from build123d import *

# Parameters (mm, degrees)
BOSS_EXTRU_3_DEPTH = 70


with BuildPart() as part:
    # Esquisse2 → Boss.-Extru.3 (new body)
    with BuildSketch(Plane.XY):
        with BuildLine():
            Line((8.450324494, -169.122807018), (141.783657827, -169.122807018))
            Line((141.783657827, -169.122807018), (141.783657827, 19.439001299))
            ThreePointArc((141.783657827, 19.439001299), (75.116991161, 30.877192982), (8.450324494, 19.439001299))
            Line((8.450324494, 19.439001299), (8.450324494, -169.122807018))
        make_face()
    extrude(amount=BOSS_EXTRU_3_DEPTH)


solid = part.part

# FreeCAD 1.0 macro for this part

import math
import FreeCAD as App
import Part
import Sketcher

doc = App.newDocument("Part")
body = doc.addObject("PartDesign::Body", "Body")

# Sketch on XY plane
sketch1 = body.newObject("Sketcher::SketchObject", "Sketch")
sketch1.AttachmentSupport = (doc.getObject("XY_Plane"), [""])
sketch1.MapMode = "FlatFace"
sketch1.addGeometry([
    Part.LineSegment(App.Vector(8.450324, -169.122807, 0), App.Vector(141.783658, -169.122807, 0)),
    Part.LineSegment(App.Vector(141.783658, -169.122807, 0), App.Vector(141.783658, 19.439001, 0)),
    Part.ArcOfCircle(Part.Circle(App.Vector(75.116991, -169.122807, 0), App.Vector(0, 0, 1), 200), math.radians(70.528779), math.radians(109.471221)),
    Part.LineSegment(App.Vector(8.450324, 19.439001, 0), App.Vector(8.450324, -169.122807, 0)),
], False)
sketch1.addConstraint([
    Sketcher.Constraint("Coincident", 0, 2, 1, 1),
    Sketcher.Constraint("Coincident", 1, 2, 2, 1),
    Sketcher.Constraint("Coincident", 2, 2, 3, 1),
    Sketcher.Constraint("Coincident", 3, 2, 0, 1),
    Sketcher.Constraint("Horizontal", 0),
    Sketcher.Constraint("Vertical", 1),
    Sketcher.Constraint("Vertical", 3),
    Sketcher.Constraint("Horizontal", 2, 3, 0, 2),
    Sketcher.Constraint("Horizontal", 1, 2, 2, 2),
    Sketcher.Constraint("Radius", 2, 200.0),
    Sketcher.Constraint("DistanceY", -1, 1, 1, 2, 19.439001),
    Sketcher.Constraint("DistanceY", 1, 1, 1, 2, 188.561808),
    Sketcher.Constraint("DistanceX", -1, 1, 2, 3, 75.116991),
])
pad1 = body.newObject("PartDesign::Pad", "Pad")
pad1.Profile = sketch1
pad1.Length = 70

doc.recompute()
